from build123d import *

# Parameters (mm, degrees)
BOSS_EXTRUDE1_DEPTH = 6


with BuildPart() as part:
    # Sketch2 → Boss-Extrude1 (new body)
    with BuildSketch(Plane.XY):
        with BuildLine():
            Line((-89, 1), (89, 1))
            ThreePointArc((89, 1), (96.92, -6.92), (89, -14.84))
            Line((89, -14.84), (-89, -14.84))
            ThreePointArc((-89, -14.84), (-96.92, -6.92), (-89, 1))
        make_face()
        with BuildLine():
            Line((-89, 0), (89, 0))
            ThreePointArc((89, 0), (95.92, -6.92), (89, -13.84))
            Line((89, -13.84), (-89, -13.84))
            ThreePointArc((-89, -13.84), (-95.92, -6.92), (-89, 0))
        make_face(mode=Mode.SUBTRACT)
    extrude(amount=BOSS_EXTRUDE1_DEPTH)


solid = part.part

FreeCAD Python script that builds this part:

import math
import FreeCAD as App
import Part
import Sketcher

doc = App.newDocument("Part")
body = doc.addObject("PartDesign::Body", "Body")

# Sketch on XY plane
sketch1 = body.newObject("Sketcher::SketchObject", "Sketch")
sketch1.AttachmentSupport = (doc.getObject("XY_Plane"), [""])
sketch1.MapMode = "FlatFace"
sketch1.addGeometry([
    Part.LineSegment(App.Vector(89, 1, 0), App.Vector(-89, 1, 0)),  # 0
    Part.ArcOfCircle(Part.Circle(App.Vector(-89, -7, 0), App.Vector(0, 0, 1), 8), math.radians(90), math.radians(270)),  # 1
    Part.LineSegment(App.Vector(-89, -15, 0), App.Vector(89, -15, 0)),  # 2
    Part.ArcOfCircle(Part.Circle(App.Vector(89, -7, 0), App.Vector(0, 0, 1), 8), math.radians(-90), math.radians(90)),  # 3
    Part.LineSegment(App.Vector(-89, 0, 0), App.Vector(89, 0, 0)),  # 4
    Part.ArcOfCircle(Part.Circle(App.Vector(89, -7, 0), App.Vector(0, 0, 1), 7), math.radians(-90), math.radians(90)),  # 5
    Part.LineSegment(App.Vector(89, -14, 0), App.Vector(-89, -14, 0)),  # 6
    Part.ArcOfCircle(Part.Circle(App.Vector(-89, -7, 0), App.Vector(0, 0, 1), 7), math.radians(90), math.radians(270)),  # 7
], False)
sketch1.addConstraint([
    Sketcher.Constraint("Tangent", 0, 2, 1, 1),
    Sketcher.Constraint("Tangent", 1, 2, 2, 1),
    Sketcher.Constraint("Tangent", 2, 2, 3, 1),
    Sketcher.Constraint("Tangent", 3, 2, 0, 1),
    Sketcher.Constraint("Tangent", 4, 2, 5, 2),
    Sketcher.Constraint("Tangent", 5, 1, 6, 1),
    Sketcher.Constraint("Tangent", 6, 2, 7, 2),
    Sketcher.Constraint("Tangent", 7, 1, 4, 1),
    Sketcher.Constraint("Horizontal", 0),
    Sketcher.Constraint("Horizontal", 2),
    Sketcher.Constraint("Horizontal", 4),
    Sketcher.Constraint("Horizontal", 6),
    Sketcher.Constraint("Coincident", 5, 3, 3, 3),
    Sketcher.Constraint("Symmetric", 4, 2, 7, 1, -1, 1),
    Sketcher.Constraint("Vertical", 7, 3, 0, 2),
    Sketcher.Constraint("DistanceX", 0, 2, 0, 1, 178.0),
    Sketcher.Constraint("Radius", 1, 7.92),
    Sketcher.Constraint("Radius", 5, 6.92),
])
pad1 = body.newObject("PartDesign::Pad", "Pad")
pad1.Profile = sketch1
pad1.Length = 6

doc.recompute()
